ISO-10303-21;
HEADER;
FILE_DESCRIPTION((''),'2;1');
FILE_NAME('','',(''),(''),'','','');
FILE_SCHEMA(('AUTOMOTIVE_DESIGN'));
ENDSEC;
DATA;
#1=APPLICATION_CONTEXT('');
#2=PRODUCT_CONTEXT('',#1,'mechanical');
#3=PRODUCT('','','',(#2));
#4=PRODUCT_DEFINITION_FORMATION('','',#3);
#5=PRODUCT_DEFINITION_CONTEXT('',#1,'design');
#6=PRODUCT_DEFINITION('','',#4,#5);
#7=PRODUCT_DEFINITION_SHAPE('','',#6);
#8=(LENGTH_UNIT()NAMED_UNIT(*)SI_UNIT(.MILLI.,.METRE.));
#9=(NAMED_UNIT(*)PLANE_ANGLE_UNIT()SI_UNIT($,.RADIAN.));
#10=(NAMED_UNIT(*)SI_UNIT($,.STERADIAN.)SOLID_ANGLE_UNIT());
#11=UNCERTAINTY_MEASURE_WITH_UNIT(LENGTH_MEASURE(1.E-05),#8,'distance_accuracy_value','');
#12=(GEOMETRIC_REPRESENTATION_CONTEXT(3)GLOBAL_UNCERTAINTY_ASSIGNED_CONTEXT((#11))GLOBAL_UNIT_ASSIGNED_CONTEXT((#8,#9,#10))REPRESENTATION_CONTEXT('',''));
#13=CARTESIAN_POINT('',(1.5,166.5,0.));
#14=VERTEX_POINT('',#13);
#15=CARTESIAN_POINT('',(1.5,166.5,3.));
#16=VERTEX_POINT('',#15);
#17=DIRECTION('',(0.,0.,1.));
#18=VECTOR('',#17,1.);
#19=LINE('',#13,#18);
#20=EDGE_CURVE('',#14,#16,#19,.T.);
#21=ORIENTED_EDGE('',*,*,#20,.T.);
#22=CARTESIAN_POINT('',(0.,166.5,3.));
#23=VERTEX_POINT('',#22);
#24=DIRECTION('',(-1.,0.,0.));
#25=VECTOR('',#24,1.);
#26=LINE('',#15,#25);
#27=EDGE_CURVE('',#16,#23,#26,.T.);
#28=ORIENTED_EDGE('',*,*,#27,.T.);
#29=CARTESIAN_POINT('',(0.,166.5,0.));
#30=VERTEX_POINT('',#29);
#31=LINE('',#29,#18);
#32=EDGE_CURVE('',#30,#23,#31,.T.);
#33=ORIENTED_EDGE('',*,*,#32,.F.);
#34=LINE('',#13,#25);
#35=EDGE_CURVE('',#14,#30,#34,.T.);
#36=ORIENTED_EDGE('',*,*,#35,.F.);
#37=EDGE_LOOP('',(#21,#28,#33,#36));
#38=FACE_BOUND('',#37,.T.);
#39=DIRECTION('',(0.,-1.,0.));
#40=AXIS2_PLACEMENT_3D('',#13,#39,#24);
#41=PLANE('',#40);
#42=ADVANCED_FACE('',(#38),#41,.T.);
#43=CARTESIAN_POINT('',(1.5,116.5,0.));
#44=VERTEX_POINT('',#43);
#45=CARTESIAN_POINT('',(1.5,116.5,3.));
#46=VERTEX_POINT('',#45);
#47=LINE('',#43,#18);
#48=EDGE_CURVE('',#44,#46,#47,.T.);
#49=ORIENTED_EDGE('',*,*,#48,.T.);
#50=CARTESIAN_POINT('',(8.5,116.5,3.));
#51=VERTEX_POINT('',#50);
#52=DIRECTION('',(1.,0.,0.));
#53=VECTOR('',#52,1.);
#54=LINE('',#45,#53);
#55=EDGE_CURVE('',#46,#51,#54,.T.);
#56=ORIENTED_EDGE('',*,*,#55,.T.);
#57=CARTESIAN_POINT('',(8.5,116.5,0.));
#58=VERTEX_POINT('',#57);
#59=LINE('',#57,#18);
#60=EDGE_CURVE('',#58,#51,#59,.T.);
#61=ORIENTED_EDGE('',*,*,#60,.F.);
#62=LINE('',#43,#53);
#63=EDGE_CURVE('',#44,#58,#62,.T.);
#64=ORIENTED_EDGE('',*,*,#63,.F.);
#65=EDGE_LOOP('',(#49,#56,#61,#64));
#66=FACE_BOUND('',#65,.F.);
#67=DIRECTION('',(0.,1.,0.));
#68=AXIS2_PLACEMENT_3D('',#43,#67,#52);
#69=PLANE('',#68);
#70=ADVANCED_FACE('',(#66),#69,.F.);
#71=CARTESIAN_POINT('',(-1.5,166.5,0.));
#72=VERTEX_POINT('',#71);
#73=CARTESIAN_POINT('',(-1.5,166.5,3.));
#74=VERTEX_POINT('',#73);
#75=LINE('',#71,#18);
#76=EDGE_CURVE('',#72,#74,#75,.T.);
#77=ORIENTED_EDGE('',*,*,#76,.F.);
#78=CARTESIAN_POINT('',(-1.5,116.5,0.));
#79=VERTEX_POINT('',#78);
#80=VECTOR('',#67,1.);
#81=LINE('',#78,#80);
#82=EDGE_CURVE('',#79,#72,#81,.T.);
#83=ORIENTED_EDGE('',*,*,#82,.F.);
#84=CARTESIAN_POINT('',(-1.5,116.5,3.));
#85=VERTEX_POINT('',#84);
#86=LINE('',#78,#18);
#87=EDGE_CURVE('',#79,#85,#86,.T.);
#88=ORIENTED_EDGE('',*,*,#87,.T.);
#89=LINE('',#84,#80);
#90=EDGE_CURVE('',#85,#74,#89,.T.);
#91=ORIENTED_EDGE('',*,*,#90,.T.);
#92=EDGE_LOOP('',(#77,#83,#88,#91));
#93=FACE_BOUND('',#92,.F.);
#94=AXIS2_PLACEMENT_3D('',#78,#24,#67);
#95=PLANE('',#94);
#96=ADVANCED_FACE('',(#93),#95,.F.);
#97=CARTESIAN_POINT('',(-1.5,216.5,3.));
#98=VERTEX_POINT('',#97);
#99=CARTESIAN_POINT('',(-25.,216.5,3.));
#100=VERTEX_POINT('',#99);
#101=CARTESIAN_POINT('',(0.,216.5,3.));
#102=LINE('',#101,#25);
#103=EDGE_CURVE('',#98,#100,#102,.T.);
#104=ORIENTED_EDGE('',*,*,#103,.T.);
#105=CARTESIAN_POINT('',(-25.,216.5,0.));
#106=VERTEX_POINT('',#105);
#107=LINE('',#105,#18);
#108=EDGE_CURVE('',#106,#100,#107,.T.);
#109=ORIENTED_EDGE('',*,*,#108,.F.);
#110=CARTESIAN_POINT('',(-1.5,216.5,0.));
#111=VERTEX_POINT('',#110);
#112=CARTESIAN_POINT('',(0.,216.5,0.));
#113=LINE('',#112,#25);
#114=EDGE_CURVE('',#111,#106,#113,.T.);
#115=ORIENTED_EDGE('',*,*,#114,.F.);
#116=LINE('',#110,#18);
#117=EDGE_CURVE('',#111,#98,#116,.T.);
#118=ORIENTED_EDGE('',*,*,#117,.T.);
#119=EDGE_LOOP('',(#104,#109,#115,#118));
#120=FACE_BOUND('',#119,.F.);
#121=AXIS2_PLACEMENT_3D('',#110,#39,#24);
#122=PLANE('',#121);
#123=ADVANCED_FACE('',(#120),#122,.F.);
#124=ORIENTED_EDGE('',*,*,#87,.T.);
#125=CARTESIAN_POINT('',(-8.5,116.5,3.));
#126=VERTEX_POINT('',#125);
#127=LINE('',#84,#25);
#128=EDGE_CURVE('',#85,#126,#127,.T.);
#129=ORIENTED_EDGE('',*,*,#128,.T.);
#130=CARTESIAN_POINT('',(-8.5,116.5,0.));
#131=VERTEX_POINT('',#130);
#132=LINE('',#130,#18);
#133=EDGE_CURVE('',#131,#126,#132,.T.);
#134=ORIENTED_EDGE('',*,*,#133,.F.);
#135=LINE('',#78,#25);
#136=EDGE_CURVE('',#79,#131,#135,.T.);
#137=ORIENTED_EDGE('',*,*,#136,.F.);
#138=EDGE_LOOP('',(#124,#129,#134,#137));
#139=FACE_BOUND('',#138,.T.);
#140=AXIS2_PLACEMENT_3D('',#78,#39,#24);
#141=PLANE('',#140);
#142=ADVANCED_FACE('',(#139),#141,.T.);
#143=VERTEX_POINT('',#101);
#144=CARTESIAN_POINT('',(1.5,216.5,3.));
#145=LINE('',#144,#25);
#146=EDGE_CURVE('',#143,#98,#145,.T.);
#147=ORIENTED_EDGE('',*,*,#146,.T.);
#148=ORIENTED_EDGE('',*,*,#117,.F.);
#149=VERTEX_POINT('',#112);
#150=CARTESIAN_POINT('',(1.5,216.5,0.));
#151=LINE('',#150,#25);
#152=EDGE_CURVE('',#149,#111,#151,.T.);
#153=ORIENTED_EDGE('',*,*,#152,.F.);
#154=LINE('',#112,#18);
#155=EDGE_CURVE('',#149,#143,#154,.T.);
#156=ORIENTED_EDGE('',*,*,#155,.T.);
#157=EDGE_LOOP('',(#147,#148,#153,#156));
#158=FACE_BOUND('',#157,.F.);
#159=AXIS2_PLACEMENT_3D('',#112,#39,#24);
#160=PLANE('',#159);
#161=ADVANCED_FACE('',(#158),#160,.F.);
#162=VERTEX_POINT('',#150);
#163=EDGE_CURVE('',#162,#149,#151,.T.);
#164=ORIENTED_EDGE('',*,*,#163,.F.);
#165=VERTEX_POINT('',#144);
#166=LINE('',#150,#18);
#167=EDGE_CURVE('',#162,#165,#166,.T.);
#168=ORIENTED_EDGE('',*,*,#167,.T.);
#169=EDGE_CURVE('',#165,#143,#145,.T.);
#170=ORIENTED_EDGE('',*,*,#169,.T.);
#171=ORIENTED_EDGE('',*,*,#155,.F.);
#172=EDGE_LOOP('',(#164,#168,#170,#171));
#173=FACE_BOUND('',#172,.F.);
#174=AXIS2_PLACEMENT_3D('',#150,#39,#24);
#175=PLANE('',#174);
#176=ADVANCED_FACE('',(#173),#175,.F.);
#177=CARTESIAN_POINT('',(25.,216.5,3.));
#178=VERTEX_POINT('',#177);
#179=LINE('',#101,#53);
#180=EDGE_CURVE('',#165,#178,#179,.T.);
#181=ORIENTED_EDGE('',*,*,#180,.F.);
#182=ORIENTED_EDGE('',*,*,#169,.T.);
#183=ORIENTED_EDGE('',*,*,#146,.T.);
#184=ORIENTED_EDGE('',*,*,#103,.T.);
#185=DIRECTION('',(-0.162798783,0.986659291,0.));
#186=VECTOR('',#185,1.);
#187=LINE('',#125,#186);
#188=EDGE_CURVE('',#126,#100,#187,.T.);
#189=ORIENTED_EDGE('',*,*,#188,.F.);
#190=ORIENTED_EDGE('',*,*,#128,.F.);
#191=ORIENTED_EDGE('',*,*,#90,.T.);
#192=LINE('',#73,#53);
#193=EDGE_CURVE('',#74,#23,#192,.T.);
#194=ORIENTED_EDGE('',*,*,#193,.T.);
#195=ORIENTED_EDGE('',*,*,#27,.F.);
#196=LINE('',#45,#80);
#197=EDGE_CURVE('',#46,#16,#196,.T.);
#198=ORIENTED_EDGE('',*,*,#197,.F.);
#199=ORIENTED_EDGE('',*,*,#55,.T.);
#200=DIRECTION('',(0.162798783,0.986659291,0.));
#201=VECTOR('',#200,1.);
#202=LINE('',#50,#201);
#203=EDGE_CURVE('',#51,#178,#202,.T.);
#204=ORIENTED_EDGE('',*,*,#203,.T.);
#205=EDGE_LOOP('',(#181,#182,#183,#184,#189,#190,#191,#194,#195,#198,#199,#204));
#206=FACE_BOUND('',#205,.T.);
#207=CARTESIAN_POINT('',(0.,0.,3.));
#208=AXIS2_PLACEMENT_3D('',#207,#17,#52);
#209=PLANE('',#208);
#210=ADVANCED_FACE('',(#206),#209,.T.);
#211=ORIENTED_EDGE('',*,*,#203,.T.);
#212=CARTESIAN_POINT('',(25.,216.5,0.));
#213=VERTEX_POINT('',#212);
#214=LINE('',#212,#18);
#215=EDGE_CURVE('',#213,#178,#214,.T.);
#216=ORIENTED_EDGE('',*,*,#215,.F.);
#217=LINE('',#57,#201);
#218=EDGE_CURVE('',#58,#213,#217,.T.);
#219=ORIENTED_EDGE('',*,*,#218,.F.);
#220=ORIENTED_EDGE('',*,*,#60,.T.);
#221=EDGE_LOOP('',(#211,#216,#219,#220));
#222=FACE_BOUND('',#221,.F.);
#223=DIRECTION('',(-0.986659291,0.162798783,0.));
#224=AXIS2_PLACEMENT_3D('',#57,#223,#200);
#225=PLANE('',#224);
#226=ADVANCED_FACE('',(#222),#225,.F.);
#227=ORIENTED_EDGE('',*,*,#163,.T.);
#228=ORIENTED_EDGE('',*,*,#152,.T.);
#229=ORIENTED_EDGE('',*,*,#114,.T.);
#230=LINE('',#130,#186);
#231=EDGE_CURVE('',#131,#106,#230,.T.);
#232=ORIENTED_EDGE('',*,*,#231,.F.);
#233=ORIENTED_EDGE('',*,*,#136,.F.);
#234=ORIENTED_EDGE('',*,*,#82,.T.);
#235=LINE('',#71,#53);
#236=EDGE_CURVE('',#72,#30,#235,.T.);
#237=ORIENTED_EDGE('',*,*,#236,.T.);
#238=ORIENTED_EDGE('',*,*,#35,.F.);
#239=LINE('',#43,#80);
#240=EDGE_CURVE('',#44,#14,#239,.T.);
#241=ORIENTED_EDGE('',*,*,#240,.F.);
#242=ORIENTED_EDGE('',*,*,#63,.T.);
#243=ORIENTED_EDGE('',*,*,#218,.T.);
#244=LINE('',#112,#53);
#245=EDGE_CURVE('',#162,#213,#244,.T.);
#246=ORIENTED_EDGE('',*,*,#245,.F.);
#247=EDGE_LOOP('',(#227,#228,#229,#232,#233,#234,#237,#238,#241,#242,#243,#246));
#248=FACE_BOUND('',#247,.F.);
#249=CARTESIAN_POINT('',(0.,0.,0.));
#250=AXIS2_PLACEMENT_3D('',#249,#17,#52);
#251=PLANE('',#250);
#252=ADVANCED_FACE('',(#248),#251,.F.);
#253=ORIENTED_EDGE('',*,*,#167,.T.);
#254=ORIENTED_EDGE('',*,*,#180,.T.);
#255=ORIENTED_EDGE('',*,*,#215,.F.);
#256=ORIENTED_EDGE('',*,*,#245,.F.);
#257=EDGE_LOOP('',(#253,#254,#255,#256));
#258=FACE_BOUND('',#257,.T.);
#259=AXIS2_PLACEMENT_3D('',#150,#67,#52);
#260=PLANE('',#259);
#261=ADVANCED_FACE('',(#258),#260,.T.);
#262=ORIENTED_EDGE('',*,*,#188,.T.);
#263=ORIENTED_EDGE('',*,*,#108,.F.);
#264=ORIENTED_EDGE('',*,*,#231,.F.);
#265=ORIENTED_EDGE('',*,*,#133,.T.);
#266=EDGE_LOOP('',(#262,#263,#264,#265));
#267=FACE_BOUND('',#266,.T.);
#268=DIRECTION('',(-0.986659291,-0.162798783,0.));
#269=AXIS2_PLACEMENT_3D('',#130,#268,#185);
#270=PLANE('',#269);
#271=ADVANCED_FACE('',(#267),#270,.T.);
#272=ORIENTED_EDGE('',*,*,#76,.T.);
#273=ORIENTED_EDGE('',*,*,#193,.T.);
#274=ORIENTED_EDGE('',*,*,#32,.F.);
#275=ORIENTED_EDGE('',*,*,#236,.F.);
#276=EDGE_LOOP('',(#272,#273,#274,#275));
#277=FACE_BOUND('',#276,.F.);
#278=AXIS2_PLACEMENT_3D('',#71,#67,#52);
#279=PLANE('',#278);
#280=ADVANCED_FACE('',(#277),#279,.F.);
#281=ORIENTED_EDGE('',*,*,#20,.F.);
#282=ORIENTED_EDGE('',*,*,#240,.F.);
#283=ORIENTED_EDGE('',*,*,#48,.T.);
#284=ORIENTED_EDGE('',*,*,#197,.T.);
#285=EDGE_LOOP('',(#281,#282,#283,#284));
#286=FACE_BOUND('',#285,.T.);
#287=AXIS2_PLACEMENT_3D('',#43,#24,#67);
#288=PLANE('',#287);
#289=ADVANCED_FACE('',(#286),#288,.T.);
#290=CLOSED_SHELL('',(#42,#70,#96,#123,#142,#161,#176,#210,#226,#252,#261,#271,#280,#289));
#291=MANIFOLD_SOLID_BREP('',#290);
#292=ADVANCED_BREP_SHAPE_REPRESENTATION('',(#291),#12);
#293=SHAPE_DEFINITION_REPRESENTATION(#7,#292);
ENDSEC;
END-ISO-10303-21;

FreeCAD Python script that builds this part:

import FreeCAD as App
import Part
import Sketcher

doc = App.newDocument("Part")
body = doc.addObject("PartDesign::Body", "Body")

sketch1 = body.newObject("Sketcher::SketchObject", "Sketch")
sketch1.AttachmentSupport = (doc.getObject("XY_Plane"), [""])
sketch1.MapMode = "FlatFace"
sketch1.addGeometry(Part.LineSegment(App.Vector(25, 216.5, 0), App.Vector(-25, 216.5, 0)), False)
sketch1.addGeometry(Part.LineSegment(App.Vector(-25, 216.5, 0), App.Vector(-8.5, 116.5, 0)), False)
sketch1.addGeometry(Part.LineSegment(App.Vector(-8.5, 116.5, 0), App.Vector(-1.5, 116.5, 0)), False)
sketch1.addGeometry(Part.LineSegment(App.Vector(-1.5, 116.5, 0), App.Vector(-1.5, 166.5, 0)), False)
sketch1.addGeometry(Part.LineSegment(App.Vector(-1.5, 166.5, 0), App.Vector(1.5, 166.5, 0)), False)
sketch1.addGeometry(Part.LineSegment(App.Vector(1.5, 166.5, 0), App.Vector(1.5, 116.5, 0)), False)
sketch1.addGeometry(Part.LineSegment(App.Vector(1.5, 116.5, 0), App.Vector(8.5, 116.5, 0)), False)
sketch1.addGeometry(Part.LineSegment(App.Vector(8.5, 116.5, 0), App.Vector(25, 216.5, 0)), False)
sketch1.addConstraint(Sketcher.Constraint("Coincident", 0, 2, 1, 1))
sketch1.addConstraint(Sketcher.Constraint("Coincident", 1, 2, 2, 1))
sketch1.addConstraint(Sketcher.Constraint("Coincident", 2, 2, 3, 1))
sketch1.addConstraint(Sketcher.Constraint("Coincident", 3, 2, 4, 1))
sketch1.addConstraint(Sketcher.Constraint("Coincident", 4, 2, 5, 1))
sketch1.addConstraint(Sketcher.Constraint("Coincident", 5, 2, 6, 1))
sketch1.addConstraint(Sketcher.Constraint("Coincident", 6, 2, 7, 1))
sketch1.addConstraint(Sketcher.Constraint("Coincident", 7, 2, 0, 1))
sketch1.addConstraint(Sketcher.Constraint("Horizontal", 0))
sketch1.addConstraint(Sketcher.Constraint("Horizontal", 2))
sketch1.addConstraint(Sketcher.Constraint("Vertical", 3))
sketch1.addConstraint(Sketcher.Constraint("Horizontal", 4))
sketch1.addConstraint(Sketcher.Constraint("Vertical", 5))
sketch1.addConstraint(Sketcher.Constraint("Horizontal", 6))
sketch1.addConstraint(Sketcher.Constraint("Symmetric", 2, 2, 5, 2, -2))
sketch1.addConstraint(Sketcher.Constraint("Equal", 2, 6))
sketch1.addConstraint(Sketcher.Constraint("Equal", 0, 3))
sketch1.addConstraint(Sketcher.Constraint("Equal", 1, 7))
sketch1.addConstraint(Sketcher.Constraint("DistanceX", 0, 2, 0, 1, 50.0))
sketch1.addConstraint(Sketcher.Constraint("DistanceY", 3, 2, 0, 2, 50.0))
sketch1.addConstraint(Sketcher.Constraint("DistanceX", 1, 2, -1, 1, 8.5))
sketch1.addConstraint(Sketcher.Constraint("DistanceX", 2, 2, -1, 1, 1.5))
sketch1.addConstraint(Sketcher.Constraint("DistanceY", -1, 1, 0, 2, 216.5))
pad1 = body.newObject("PartDesign::Pad", "Pad")
pad1.Profile = sketch1
pad1.Length = 3

doc.recompute()
